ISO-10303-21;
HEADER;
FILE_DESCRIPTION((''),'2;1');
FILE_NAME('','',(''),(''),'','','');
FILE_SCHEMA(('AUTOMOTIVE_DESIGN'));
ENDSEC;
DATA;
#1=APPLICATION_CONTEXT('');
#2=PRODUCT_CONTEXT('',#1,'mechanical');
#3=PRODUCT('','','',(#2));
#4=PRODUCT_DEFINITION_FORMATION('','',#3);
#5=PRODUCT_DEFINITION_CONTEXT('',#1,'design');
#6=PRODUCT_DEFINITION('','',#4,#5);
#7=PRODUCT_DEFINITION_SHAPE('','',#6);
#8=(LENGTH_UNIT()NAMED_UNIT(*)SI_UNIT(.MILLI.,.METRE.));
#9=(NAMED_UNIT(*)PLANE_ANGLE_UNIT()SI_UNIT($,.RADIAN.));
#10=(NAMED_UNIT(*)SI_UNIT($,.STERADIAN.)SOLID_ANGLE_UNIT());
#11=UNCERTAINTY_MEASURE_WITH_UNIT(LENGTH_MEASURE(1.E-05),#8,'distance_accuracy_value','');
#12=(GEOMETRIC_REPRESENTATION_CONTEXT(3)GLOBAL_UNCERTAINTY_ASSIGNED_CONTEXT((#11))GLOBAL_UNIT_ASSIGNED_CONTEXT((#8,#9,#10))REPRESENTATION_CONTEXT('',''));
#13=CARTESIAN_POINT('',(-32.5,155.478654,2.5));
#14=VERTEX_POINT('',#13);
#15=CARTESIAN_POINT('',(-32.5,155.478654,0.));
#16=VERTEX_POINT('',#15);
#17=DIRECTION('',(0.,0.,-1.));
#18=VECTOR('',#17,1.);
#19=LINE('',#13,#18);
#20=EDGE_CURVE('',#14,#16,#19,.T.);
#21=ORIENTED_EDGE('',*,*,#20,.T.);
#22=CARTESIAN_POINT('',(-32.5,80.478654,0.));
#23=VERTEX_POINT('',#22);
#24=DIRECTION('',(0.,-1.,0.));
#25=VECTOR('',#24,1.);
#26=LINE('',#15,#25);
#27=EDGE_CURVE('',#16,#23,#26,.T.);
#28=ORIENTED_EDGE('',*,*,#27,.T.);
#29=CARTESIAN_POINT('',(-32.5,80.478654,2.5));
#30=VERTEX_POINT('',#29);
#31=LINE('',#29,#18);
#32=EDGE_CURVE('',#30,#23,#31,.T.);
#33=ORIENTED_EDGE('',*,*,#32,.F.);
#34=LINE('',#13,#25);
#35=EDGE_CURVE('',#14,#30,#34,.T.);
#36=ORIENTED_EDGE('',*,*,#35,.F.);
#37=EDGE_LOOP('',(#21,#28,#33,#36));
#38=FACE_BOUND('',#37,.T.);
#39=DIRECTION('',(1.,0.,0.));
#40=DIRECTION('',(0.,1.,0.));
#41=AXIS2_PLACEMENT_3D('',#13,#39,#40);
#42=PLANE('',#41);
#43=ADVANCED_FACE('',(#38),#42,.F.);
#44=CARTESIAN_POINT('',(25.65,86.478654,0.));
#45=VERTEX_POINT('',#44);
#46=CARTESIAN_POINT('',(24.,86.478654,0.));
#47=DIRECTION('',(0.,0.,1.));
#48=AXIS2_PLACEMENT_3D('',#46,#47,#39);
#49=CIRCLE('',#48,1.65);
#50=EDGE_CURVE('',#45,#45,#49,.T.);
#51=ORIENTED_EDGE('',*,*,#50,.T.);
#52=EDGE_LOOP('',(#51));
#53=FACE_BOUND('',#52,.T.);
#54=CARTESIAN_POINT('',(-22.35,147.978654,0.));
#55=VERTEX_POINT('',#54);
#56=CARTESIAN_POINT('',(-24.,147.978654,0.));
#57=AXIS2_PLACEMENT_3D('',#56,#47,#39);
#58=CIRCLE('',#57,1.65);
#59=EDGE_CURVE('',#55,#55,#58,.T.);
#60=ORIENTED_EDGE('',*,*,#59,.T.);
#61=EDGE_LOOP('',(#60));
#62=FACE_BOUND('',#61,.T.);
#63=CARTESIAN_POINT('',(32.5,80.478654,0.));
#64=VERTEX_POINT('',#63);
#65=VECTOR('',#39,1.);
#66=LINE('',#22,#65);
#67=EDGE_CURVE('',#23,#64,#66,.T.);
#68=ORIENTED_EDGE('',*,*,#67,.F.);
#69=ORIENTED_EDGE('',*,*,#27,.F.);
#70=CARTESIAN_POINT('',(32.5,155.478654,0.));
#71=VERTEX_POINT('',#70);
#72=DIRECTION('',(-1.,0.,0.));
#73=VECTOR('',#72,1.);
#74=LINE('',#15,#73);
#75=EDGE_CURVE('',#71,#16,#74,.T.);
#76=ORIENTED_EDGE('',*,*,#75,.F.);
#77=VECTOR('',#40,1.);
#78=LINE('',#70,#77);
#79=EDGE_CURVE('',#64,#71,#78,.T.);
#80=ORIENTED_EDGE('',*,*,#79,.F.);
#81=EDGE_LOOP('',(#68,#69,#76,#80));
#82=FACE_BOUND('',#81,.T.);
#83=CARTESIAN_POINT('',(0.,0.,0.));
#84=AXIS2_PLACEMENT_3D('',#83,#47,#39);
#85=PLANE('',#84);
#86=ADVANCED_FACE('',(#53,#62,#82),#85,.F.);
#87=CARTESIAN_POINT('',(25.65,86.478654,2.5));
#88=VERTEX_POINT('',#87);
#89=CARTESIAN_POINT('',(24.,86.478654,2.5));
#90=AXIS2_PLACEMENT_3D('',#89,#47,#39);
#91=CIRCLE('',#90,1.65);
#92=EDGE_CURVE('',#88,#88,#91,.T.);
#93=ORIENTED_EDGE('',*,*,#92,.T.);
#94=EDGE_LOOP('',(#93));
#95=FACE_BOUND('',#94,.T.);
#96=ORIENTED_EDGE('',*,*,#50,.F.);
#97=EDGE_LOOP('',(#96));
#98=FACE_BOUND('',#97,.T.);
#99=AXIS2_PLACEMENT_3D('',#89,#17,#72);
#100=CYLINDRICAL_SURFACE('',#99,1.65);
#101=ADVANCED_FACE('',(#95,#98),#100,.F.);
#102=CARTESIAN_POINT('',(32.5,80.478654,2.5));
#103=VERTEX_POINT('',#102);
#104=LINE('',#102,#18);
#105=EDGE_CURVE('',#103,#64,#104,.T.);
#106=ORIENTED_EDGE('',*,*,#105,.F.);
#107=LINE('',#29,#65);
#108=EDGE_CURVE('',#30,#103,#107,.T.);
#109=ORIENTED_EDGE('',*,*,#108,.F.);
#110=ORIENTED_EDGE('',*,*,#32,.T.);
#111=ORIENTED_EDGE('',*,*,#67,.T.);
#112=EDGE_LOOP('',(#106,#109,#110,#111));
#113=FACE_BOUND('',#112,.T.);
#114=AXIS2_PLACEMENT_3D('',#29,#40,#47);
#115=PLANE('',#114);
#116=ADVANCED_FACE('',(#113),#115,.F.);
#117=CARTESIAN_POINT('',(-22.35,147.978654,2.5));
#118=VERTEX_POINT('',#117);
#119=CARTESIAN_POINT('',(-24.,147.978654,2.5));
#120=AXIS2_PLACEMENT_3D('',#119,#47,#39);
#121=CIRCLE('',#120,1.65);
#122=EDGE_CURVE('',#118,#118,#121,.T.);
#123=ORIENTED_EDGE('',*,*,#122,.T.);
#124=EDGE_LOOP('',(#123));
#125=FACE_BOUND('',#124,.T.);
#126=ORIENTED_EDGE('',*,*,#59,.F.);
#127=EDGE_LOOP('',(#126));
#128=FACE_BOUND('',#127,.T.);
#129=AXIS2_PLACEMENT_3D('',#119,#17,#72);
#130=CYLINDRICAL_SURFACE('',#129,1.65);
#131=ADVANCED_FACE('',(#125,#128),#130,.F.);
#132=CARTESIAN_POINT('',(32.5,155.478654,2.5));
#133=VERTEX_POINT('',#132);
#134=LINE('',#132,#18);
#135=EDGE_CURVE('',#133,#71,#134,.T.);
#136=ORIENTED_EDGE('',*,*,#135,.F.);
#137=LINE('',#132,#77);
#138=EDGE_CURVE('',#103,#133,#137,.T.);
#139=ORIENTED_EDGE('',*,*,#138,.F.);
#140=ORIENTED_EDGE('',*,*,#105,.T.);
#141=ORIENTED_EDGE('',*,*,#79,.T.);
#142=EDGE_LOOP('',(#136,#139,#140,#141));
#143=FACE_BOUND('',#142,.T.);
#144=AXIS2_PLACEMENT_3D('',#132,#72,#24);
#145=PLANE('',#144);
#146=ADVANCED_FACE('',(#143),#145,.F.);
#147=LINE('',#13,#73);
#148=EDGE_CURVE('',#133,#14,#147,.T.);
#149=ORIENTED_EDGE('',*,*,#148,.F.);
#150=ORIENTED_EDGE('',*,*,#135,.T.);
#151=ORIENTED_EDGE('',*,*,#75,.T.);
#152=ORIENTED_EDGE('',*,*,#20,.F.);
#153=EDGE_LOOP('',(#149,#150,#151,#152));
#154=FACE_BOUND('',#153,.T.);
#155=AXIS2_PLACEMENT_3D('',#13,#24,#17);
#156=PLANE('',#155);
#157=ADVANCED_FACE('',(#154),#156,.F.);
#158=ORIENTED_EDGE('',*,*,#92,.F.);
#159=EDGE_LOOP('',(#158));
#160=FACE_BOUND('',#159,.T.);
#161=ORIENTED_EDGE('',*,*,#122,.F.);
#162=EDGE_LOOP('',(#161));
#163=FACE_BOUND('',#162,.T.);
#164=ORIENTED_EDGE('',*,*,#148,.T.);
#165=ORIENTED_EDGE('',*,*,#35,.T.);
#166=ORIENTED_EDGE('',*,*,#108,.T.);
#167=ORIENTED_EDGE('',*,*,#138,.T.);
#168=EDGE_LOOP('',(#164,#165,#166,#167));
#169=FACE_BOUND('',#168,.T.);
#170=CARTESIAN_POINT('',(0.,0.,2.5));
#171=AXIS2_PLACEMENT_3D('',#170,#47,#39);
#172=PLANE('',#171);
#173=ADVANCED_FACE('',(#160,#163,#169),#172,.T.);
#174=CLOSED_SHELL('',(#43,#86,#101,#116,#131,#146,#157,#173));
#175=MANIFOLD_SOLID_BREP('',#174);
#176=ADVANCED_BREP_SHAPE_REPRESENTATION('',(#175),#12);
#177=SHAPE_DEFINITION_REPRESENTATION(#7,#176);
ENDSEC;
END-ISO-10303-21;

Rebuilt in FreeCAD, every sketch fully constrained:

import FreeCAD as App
import Part
import Sketcher

doc = App.newDocument("Part")
body = doc.addObject("PartDesign::Body", "Body")

# Sketch on XY plane
sketch1 = body.newObject("Sketcher::SketchObject", "Sketch")
sketch1.AttachmentSupport = (doc.getObject("XY_Plane"), [""])
sketch1.MapMode = "FlatFace"
sketch1.addGeometry([
    Part.LineSegment(App.Vector(-32.5, 155.5, 0), App.Vector(-32.5, 80.5, 0)),  # 0
    Part.LineSegment(App.Vector(-32.5, 80.5, 0), App.Vector(32.5, 80.5, 0)),  # 1
    Part.LineSegment(App.Vector(32.5, 80.5, 0), App.Vector(32.5, 155.5, 0)),  # 2
    Part.LineSegment(App.Vector(32.5, 155.5, 0), App.Vector(-32.5, 155.5, 0)),  # 3
    Part.Circle(App.Vector(24, 86.5, 0), App.Vector(0, 0, 1), 1.6),  # 4
    Part.Circle(App.Vector(-24, 148, 0), App.Vector(0, 0, 1), 1.6),  # 5
], False)
sketch1.addConstraint([
    Sketcher.Constraint("Coincident", 0, 2, 1, 1),
    Sketcher.Constraint("Coincident", 1, 2, 2, 1),
    Sketcher.Constraint("Coincident", 2, 2, 3, 1),
    Sketcher.Constraint("Coincident", 3, 2, 0, 1),
    Sketcher.Constraint("Vertical", 0),
    Sketcher.Constraint("Horizontal", 1),
    Sketcher.Constraint("Vertical", 2),
    Sketcher.Constraint("Horizontal", 3),
    Sketcher.Constraint("Equal", 4, 5),
    Sketcher.Constraint("Diameter", 4, 3.3),
    Sketcher.Constraint("DistanceX", 1, 1, 1, 2, 65.0),
    Sketcher.Constraint("DistanceY", 0, 2, 0, 1, 75.0),
    Sketcher.Constraint("DistanceX", -1, 1, 4, 3, 24.0),
    Sketcher.Constraint("DistanceX", 5, 3, -1, 1, 24.0),
    Sketcher.Constraint("DistanceY", 0, 2, 4, 3, 6.0),
    Sketcher.Constraint("DistanceX", 0, 2, -1, 1, 32.5),
    Sketcher.Constraint("DistanceY", 4, 3, 5, 3, 61.5),
    Sketcher.Constraint("DistanceY", -1, 1, 4, 3, 86.478654),
])
pad1 = body.newObject("PartDesign::Pad", "Pad")
pad1.Profile = sketch1
pad1.Length = 2.5

doc.recompute()
